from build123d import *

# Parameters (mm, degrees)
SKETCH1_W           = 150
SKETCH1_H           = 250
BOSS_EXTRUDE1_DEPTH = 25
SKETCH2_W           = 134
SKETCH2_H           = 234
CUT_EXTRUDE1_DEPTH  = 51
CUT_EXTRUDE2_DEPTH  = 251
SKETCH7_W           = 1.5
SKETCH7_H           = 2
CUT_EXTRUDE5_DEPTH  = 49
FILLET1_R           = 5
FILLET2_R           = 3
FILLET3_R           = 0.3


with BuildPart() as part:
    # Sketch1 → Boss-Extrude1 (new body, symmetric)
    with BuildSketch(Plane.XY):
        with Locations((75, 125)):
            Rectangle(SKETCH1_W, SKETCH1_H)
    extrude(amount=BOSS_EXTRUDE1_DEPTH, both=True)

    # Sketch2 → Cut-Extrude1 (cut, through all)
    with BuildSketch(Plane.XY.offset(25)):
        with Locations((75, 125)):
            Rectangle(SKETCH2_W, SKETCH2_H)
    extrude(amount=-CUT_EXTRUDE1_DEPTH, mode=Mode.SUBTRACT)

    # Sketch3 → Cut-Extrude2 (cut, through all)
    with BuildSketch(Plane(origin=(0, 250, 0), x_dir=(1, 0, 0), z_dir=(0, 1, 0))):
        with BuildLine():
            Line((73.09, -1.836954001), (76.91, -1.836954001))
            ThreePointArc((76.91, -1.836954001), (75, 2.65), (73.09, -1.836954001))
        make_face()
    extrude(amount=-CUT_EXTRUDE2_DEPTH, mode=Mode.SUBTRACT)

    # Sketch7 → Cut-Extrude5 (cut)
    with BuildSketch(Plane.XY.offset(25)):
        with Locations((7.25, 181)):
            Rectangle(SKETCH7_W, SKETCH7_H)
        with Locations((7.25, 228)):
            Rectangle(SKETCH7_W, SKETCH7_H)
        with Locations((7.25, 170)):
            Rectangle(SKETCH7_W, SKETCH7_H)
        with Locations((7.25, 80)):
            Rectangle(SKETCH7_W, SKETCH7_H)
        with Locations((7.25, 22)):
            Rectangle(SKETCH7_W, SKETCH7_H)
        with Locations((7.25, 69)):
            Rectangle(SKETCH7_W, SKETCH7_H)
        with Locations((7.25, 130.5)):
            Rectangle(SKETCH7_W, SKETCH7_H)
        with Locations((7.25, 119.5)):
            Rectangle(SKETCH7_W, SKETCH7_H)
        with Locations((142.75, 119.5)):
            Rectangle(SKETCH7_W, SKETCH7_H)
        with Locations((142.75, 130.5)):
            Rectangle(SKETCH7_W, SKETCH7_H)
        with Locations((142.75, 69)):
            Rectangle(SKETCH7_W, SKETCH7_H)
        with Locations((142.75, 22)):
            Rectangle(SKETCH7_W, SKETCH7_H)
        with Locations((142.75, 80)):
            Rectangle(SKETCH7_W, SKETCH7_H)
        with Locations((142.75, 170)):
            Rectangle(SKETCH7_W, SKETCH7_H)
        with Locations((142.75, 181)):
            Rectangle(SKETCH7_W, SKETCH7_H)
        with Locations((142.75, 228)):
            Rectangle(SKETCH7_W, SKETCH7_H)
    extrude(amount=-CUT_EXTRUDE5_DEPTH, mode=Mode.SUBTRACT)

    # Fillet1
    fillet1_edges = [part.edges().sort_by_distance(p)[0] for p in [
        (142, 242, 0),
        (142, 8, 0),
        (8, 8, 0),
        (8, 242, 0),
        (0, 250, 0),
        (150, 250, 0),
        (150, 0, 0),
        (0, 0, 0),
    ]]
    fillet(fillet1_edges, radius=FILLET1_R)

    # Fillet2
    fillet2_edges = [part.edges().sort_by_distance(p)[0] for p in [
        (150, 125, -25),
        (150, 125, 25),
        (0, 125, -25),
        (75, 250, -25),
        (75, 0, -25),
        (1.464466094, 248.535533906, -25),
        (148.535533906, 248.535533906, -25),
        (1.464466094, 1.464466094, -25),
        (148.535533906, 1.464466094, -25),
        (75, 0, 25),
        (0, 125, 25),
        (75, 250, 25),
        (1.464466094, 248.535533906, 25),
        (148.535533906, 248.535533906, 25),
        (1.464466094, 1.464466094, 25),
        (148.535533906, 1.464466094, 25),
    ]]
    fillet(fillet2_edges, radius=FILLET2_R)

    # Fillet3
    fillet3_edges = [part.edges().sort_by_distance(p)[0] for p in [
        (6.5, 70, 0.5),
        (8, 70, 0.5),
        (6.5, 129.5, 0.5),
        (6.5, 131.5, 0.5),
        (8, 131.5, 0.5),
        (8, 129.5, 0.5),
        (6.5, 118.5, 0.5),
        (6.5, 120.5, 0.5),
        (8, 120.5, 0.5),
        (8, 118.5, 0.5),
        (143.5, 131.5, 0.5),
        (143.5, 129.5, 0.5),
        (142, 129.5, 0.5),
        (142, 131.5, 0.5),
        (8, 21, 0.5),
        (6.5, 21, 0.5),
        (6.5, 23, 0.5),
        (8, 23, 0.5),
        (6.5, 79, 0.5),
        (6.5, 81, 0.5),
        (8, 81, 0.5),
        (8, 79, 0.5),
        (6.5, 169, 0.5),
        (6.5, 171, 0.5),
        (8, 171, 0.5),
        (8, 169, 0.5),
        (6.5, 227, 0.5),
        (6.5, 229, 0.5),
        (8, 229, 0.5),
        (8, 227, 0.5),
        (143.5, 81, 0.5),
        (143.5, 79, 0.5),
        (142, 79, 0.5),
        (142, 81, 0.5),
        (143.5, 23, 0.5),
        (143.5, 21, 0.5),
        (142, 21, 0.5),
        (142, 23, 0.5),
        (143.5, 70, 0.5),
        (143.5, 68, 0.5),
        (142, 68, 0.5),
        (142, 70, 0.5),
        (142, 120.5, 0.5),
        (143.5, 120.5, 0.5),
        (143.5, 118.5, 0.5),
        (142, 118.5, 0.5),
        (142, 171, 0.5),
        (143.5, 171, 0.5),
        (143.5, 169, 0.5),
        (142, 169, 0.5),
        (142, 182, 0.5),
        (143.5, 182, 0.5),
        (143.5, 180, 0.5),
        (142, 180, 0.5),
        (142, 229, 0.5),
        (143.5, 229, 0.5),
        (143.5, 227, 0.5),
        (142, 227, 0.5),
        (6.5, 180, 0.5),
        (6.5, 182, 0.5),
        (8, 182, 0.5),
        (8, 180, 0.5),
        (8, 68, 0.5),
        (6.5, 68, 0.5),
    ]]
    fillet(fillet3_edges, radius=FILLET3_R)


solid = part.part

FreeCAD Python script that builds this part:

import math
import FreeCAD as App
import Part
import Sketcher
Q = App.Units.Quantity


def edges_at(feature, points):
    """Names of the edges that pass closest to the given points."""
    edges = feature.Shape.Edges
    near = lambda p: min(range(len(edges)), key=lambda i: edges[i].distToShape(Part.Vertex(*p))[0])
    return sorted({f"Edge{near(p) + 1}" for p in points})

doc = App.newDocument("Part")
params = doc.addObject("Spreadsheet::Sheet", "Params")
for row, (alias, value) in enumerate([
    ("sketch1_width", "150 mm"),
    ("sketch1_height", "250 mm"),
    ("pad1_length", "50 mm"),
    ("sketch2_width", "134 mm"),
    ("sketch2_height", "234 mm"),
    ("sketch3_radius", "2.65 mm"),
    ("sketch3_width", "3.82 mm"),
    ("sketch4_height", "2 mm"),
    ("sketch4_width", "1.5 mm"),
    ("pocket3_length", "49 mm"),
    ("fillet_radius", "5 mm"),
    ("fillet2_radius", "3 mm"),
    ("fillet3_radius", "0.3 mm"),
], start=1):
    params.set(f"A{row}", alias)
    params.set(f"B{row}", "=" + value)
    params.setAlias(f"B{row}", alias)

body = doc.addObject("PartDesign::Body", "Body")

sketch1 = doc.addObject("Sketcher::SketchObject", "Sketch")
body.addObject(sketch1)
sketch1.AttachmentSupport = (doc.XY_Plane, [""])
sketch1.MapMode = "FlatFace"
sketch1.addGeometry(Part.LineSegment(App.Vector(0, 250, 0), App.Vector(0, 0, 0)), False)
sketch1.addGeometry(Part.LineSegment(App.Vector(0, 0, 0), App.Vector(150, 0, 0)), False)
sketch1.addGeometry(Part.LineSegment(App.Vector(150, 0, 0), App.Vector(150, 250, 0)), False)
sketch1.addGeometry(Part.LineSegment(App.Vector(150, 250, 0), App.Vector(0, 250, 0)), False)
sketch1.addConstraint(Sketcher.Constraint("Coincident", 0, 2, 1, 1))
sketch1.addConstraint(Sketcher.Constraint("Coincident", 1, 2, 2, 1))
sketch1.addConstraint(Sketcher.Constraint("Coincident", 2, 2, 3, 1))
sketch1.addConstraint(Sketcher.Constraint("Coincident", 3, 2, 0, 1))
sketch1.addConstraint(Sketcher.Constraint("Vertical", 0))
sketch1.addConstraint(Sketcher.Constraint("Horizontal", 1))
sketch1.addConstraint(Sketcher.Constraint("Vertical", 2))
sketch1.addConstraint(Sketcher.Constraint("Horizontal", 3))
sketch1.addConstraint(Sketcher.Constraint("Coincident", 0, 2, -1, 1))
sketch1.addConstraint(Sketcher.Constraint("DistanceX", 1, 1, 1, 2, Q("150 mm")))
sketch1.addConstraint(Sketcher.Constraint("DistanceY", 0, 2, 0, 1, Q("250 mm")))
sketch1.setExpression("Constraints[9]", "Params.sketch1_width")
sketch1.setExpression("Constraints[10]", "Params.sketch1_height")
pad1 = doc.addObject("PartDesign::Pad", "Pad")
body.addObject(pad1)
pad1.Profile = sketch1
pad1.setExpression("Length", "Params.pad1_length")
pad1.Midplane = True

sketch2 = doc.addObject("Sketcher::SketchObject", "Sketch001")
body.addObject(sketch2)
sketch2.AttachmentSupport = (doc.XY_Plane, [""])
sketch2.MapMode = "FlatFace"
sketch2.AttachmentOffset = App.Placement(App.Vector(0, 0, 25), App.Rotation())
sketch2.addGeometry(Part.LineSegment(App.Vector(8, 242, 0), App.Vector(8, 8, 0)), False)
sketch2.addGeometry(Part.LineSegment(App.Vector(8, 8, 0), App.Vector(142, 8, 0)), False)
sketch2.addGeometry(Part.LineSegment(App.Vector(142, 8, 0), App.Vector(142, 242, 0)), False)
sketch2.addGeometry(Part.LineSegment(App.Vector(142, 242, 0), App.Vector(8, 242, 0)), False)
sketch2.addConstraint(Sketcher.Constraint("Coincident", 0, 2, 1, 1))
sketch2.addConstraint(Sketcher.Constraint("Coincident", 1, 2, 2, 1))
sketch2.addConstraint(Sketcher.Constraint("Coincident", 2, 2, 3, 1))
sketch2.addConstraint(Sketcher.Constraint("Coincident", 3, 2, 0, 1))
sketch2.addConstraint(Sketcher.Constraint("Vertical", 0))
sketch2.addConstraint(Sketcher.Constraint("Horizontal", 1))
sketch2.addConstraint(Sketcher.Constraint("Vertical", 2))
sketch2.addConstraint(Sketcher.Constraint("Horizontal", 3))
sketch2.addConstraint(Sketcher.Constraint("DistanceX", 1, 1, 1, 2, Q("134 mm")))
sketch2.addConstraint(Sketcher.Constraint("DistanceY", 0, 2, 0, 1, Q("234 mm")))
sketch2.addConstraint(Sketcher.Constraint("DistanceX", -1, 1, 0, 2, Q("8 mm")))
sketch2.addConstraint(Sketcher.Constraint("DistanceY", -1, 1, 0, 2, Q("8 mm")))
sketch2.setExpression("Constraints[8]", "Params.sketch2_width")
sketch2.setExpression("Constraints[9]", "Params.sketch2_height")
pocket1 = doc.addObject("PartDesign::Pocket", "Pocket")
body.addObject(pocket1)
pocket1.Profile = sketch2
pocket1.Type = "ThroughAll"

sketch3 = doc.addObject("Sketcher::SketchObject", "Sketch002")
body.addObject(sketch3)
sketch3.AttachmentSupport = (doc.XZ_Plane, [""])
sketch3.MapMode = "FlatFace"
sketch3.AttachmentOffset = App.Placement(App.Vector(0, 0, -250), App.Rotation())
sketch3.addGeometry(Part.LineSegment(App.Vector(73.09, 1.836954, 0), App.Vector(76.91, 1.836954, 0)), False)
sketch3.addGeometry(Part.ArcOfCircle(Part.Circle(App.Vector(75, 0, 0), App.Vector(0, 0, 1), 2.65), math.radians(136.116826), math.radians(403.883174)), False)
sketch3.addConstraint(Sketcher.Constraint("Coincident", 0, 1, 1, 1))
sketch3.addConstraint(Sketcher.Constraint("Coincident", 1, 2, 0, 2))
sketch3.addConstraint(Sketcher.Constraint("Horizontal", 0))
sketch3.addConstraint(Sketcher.Constraint("PointOnObject", 1, 3, -1))
sketch3.addConstraint(Sketcher.Constraint("Radius", 1, Q("2.65 mm")))
sketch3.addConstraint(Sketcher.Constraint("DistanceX", -1, 1, 1, 3, Q("75 mm")))
sketch3.addConstraint(Sketcher.Constraint("DistanceX", 0, 1, 0, 2, Q("3.82 mm")))
sketch3.setExpression("Constraints[4]", "Params.sketch3_radius")
sketch3.setExpression("Constraints[6]", "Params.sketch3_width")
pocket2 = doc.addObject("PartDesign::Pocket", "Pocket001")
body.addObject(pocket2)
pocket2.Profile = sketch3
pocket2.Type = "ThroughAll"
pocket2.Reversed = True

sketch4 = doc.addObject("Sketcher::SketchObject", "Sketch003")
body.addObject(sketch4)
sketch4.AttachmentSupport = (doc.XY_Plane, [""])
sketch4.MapMode = "FlatFace"
sketch4.AttachmentOffset = App.Placement(App.Vector(0, 0, 25), App.Rotation())
sketch4.addGeometry(Part.LineSegment(App.Vector(6.5, 182, 0), App.Vector(6.5, 180, 0)), False)
sketch4.addGeometry(Part.LineSegment(App.Vector(6.5, 180, 0), App.Vector(8, 180, 0)), False)
sketch4.addGeometry(Part.LineSegment(App.Vector(8, 180, 0), App.Vector(8, 182, 0)), False)
sketch4.addGeometry(Part.LineSegment(App.Vector(8, 182, 0), App.Vector(6.5, 182, 0)), False)
sketch4.addGeometry(Part.LineSegment(App.Vector(6.5, 229, 0), App.Vector(6.5, 227, 0)), False)
sketch4.addGeometry(Part.LineSegment(App.Vector(6.5, 227, 0), App.Vector(8, 227, 0)), False)
sketch4.addGeometry(Part.LineSegment(App.Vector(8, 227, 0), App.Vector(8, 229, 0)), False)
sketch4.addGeometry(Part.LineSegment(App.Vector(8, 229, 0), App.Vector(6.5, 229, 0)), False)
sketch4.addGeometry(Part.LineSegment(App.Vector(6.5, 171, 0), App.Vector(6.5, 169, 0)), False)
sketch4.addGeometry(Part.LineSegment(App.Vector(6.5, 169, 0), App.Vector(8, 169, 0)), False)
sketch4.addGeometry(Part.LineSegment(App.Vector(8, 169, 0), App.Vector(8, 171, 0)), False)
sketch4.addGeometry(Part.LineSegment(App.Vector(8, 171, 0), App.Vector(6.5, 171, 0)), False)
sketch4.addGeometry(Part.LineSegment(App.Vector(6.5, 81, 0), App.Vector(6.5, 79, 0)), False)
sketch4.addGeometry(Part.LineSegment(App.Vector(6.5, 79, 0), App.Vector(8, 79, 0)), False)
sketch4.addGeometry(Part.LineSegment(App.Vector(8, 79, 0), App.Vector(8, 81, 0)), False)
sketch4.addGeometry(Part.LineSegment(App.Vector(8, 81, 0), App.Vector(6.5, 81, 0)), False)
sketch4.addGeometry(Part.LineSegment(App.Vector(6.5, 23, 0), App.Vector(6.5, 21, 0)), False)
sketch4.addGeometry(Part.LineSegment(App.Vector(6.5, 21, 0), App.Vector(8, 21, 0)), False)
sketch4.addGeometry(Part.LineSegment(App.Vector(8, 21, 0), App.Vector(8, 23, 0)), False)
sketch4.addGeometry(Part.LineSegment(App.Vector(8, 23, 0), App.Vector(6.5, 23, 0)), False)
sketch4.addGeometry(Part.LineSegment(App.Vector(6.5, 70, 0), App.Vector(6.5, 68, 0)), False)
sketch4.addGeometry(Part.LineSegment(App.Vector(6.5, 68, 0), App.Vector(8, 68, 0)), False)
sketch4.addGeometry(Part.LineSegment(App.Vector(8, 68, 0), App.Vector(8, 70, 0)), False)
sketch4.addGeometry(Part.LineSegment(App.Vector(8, 70, 0), App.Vector(6.5, 70, 0)), False)
sketch4.addGeometry(Part.LineSegment(App.Vector(6.5, 131.5, 0), App.Vector(6.5, 129.5, 0)), False)
sketch4.addGeometry(Part.LineSegment(App.Vector(6.5, 129.5, 0), App.Vector(8, 129.5, 0)), False)
sketch4.addGeometry(Part.LineSegment(App.Vector(8, 129.5, 0), App.Vector(8, 131.5, 0)), False)
sketch4.addGeometry(Part.LineSegment(App.Vector(8, 131.5, 0), App.Vector(6.5, 131.5, 0)), False)
sketch4.addGeometry(Part.LineSegment(App.Vector(6.5, 120.5, 0), App.Vector(6.5, 118.5, 0)), False)
sketch4.addGeometry(Part.LineSegment(App.Vector(6.5, 118.5, 0), App.Vector(8, 118.5, 0)), False)
sketch4.addGeometry(Part.LineSegment(App.Vector(8, 118.5, 0), App.Vector(8, 120.5, 0)), False)
sketch4.addGeometry(Part.LineSegment(App.Vector(8, 120.5, 0), App.Vector(6.5, 120.5, 0)), False)
sketch4.addGeometry(Part.LineSegment(App.Vector(142, 120.5, 0), App.Vector(142, 118.5, 0)), False)
sketch4.addGeometry(Part.LineSegment(App.Vector(142, 118.5, 0), App.Vector(143.5, 118.5, 0)), False)
sketch4.addGeometry(Part.LineSegment(App.Vector(143.5, 118.5, 0), App.Vector(143.5, 120.5, 0)), False)
sketch4.addGeometry(Part.LineSegment(App.Vector(143.5, 120.5, 0), App.Vector(142, 120.5, 0)), False)
sketch4.addGeometry(Part.LineSegment(App.Vector(142, 131.5, 0), App.Vector(142, 129.5, 0)), False)
sketch4.addGeometry(Part.LineSegment(App.Vector(142, 129.5, 0), App.Vector(143.5, 129.5, 0)), False)
sketch4.addGeometry(Part.LineSegment(App.Vector(143.5, 129.5, 0), App.Vector(143.5, 131.5, 0)), False)
sketch4.addGeometry(Part.LineSegment(App.Vector(143.5, 131.5, 0), App.Vector(142, 131.5, 0)), False)
sketch4.addGeometry(Part.LineSegment(App.Vector(142, 70, 0), App.Vector(142, 68, 0)), False)
sketch4.addGeometry(Part.LineSegment(App.Vector(142, 68, 0), App.Vector(143.5, 68, 0)), False)
sketch4.addGeometry(Part.LineSegment(App.Vector(143.5, 68, 0), App.Vector(143.5, 70, 0)), False)
sketch4.addGeometry(Part.LineSegment(App.Vector(143.5, 70, 0), App.Vector(142, 70, 0)), False)
sketch4.addGeometry(Part.LineSegment(App.Vector(142, 23, 0), App.Vector(142, 21, 0)), False)
sketch4.addGeometry(Part.LineSegment(App.Vector(142, 21, 0), App.Vector(143.5, 21, 0)), False)
sketch4.addGeometry(Part.LineSegment(App.Vector(143.5, 21, 0), App.Vector(143.5, 23, 0)), False)
sketch4.addGeometry(Part.LineSegment(App.Vector(143.5, 23, 0), App.Vector(142, 23, 0)), False)
sketch4.addGeometry(Part.LineSegment(App.Vector(142, 81, 0), App.Vector(142, 79, 0)), False)
sketch4.addGeometry(Part.LineSegment(App.Vector(142, 79, 0), App.Vector(143.5, 79, 0)), False)
sketch4.addGeometry(Part.LineSegment(App.Vector(143.5, 79, 0), App.Vector(143.5, 81, 0)), False)
sketch4.addGeometry(Part.LineSegment(App.Vector(143.5, 81, 0), App.Vector(142, 81, 0)), False)
sketch4.addGeometry(Part.LineSegment(App.Vector(142, 171, 0), App.Vector(142, 169, 0)), False)
sketch4.addGeometry(Part.LineSegment(App.Vector(142, 169, 0), App.Vector(143.5, 169, 0)), False)
sketch4.addGeometry(Part.LineSegment(App.Vector(143.5, 169, 0), App.Vector(143.5, 171, 0)), False)
sketch4.addGeometry(Part.LineSegment(App.Vector(143.5, 171, 0), App.Vector(142, 171, 0)), False)
sketch4.addGeometry(Part.LineSegment(App.Vector(142, 182, 0), App.Vector(142, 180, 0)), False)
sketch4.addGeometry(Part.LineSegment(App.Vector(142, 180, 0), App.Vector(143.5, 180, 0)), False)
sketch4.addGeometry(Part.LineSegment(App.Vector(143.5, 180, 0), App.Vector(143.5, 182, 0)), False)
sketch4.addGeometry(Part.LineSegment(App.Vector(143.5, 182, 0), App.Vector(142, 182, 0)), False)
sketch4.addGeometry(Part.LineSegment(App.Vector(142, 229, 0), App.Vector(142, 227, 0)), False)
sketch4.addGeometry(Part.LineSegment(App.Vector(142, 227, 0), App.Vector(143.5, 227, 0)), False)
sketch4.addGeometry(Part.LineSegment(App.Vector(143.5, 227, 0), App.Vector(143.5, 229, 0)), False)
sketch4.addGeometry(Part.LineSegment(App.Vector(143.5, 229, 0), App.Vector(142, 229, 0)), False)
sketch4.addConstraint(Sketcher.Constraint("Coincident", 0, 2, 1, 1))
sketch4.addConstraint(Sketcher.Constraint("Coincident", 1, 2, 2, 1))
sketch4.addConstraint(Sketcher.Constraint("Coincident", 2, 2, 3, 1))
sketch4.addConstraint(Sketcher.Constraint("Coincident", 3, 2, 0, 1))
sketch4.addConstraint(Sketcher.Constraint("Coincident", 4, 2, 5, 1))
sketch4.addConstraint(Sketcher.Constraint("Coincident", 5, 2, 6, 1))
sketch4.addConstraint(Sketcher.Constraint("Coincident", 6, 2, 7, 1))
sketch4.addConstraint(Sketcher.Constraint("Coincident", 7, 2, 4, 1))
sketch4.addConstraint(Sketcher.Constraint("Coincident", 8, 2, 9, 1))
sketch4.addConstraint(Sketcher.Constraint("Coincident", 9, 2, 10, 1))
sketch4.addConstraint(Sketcher.Constraint("Coincident", 10, 2, 11, 1))
sketch4.addConstraint(Sketcher.Constraint("Coincident", 11, 2, 8, 1))
sketch4.addConstraint(Sketcher.Constraint("Coincident", 12, 2, 13, 1))
sketch4.addConstraint(Sketcher.Constraint("Coincident", 13, 2, 14, 1))
sketch4.addConstraint(Sketcher.Constraint("Coincident", 14, 2, 15, 1))
sketch4.addConstraint(Sketcher.Constraint("Coincident", 15, 2, 12, 1))
sketch4.addConstraint(Sketcher.Constraint("Coincident", 16, 2, 17, 1))
sketch4.addConstraint(Sketcher.Constraint("Coincident", 17, 2, 18, 1))
sketch4.addConstraint(Sketcher.Constraint("Coincident", 18, 2, 19, 1))
sketch4.addConstraint(Sketcher.Constraint("Coincident", 19, 2, 16, 1))
sketch4.addConstraint(Sketcher.Constraint("Coincident", 20, 2, 21, 1))
sketch4.addConstraint(Sketcher.Constraint("Coincident", 21, 2, 22, 1))
sketch4.addConstraint(Sketcher.Constraint("Coincident", 22, 2, 23, 1))
sketch4.addConstraint(Sketcher.Constraint("Coincident", 23, 2, 20, 1))
sketch4.addConstraint(Sketcher.Constraint("Coincident", 24, 2, 25, 1))
sketch4.addConstraint(Sketcher.Constraint("Coincident", 25, 2, 26, 1))
sketch4.addConstraint(Sketcher.Constraint("Coincident", 26, 2, 27, 1))
sketch4.addConstraint(Sketcher.Constraint("Coincident", 27, 2, 24, 1))
sketch4.addConstraint(Sketcher.Constraint("Coincident", 28, 2, 29, 1))
sketch4.addConstraint(Sketcher.Constraint("Coincident", 29, 2, 30, 1))
sketch4.addConstraint(Sketcher.Constraint("Coincident", 30, 2, 31, 1))
sketch4.addConstraint(Sketcher.Constraint("Coincident", 31, 2, 28, 1))
sketch4.addConstraint(Sketcher.Constraint("Coincident", 32, 2, 33, 1))
sketch4.addConstraint(Sketcher.Constraint("Coincident", 33, 2, 34, 1))
sketch4.addConstraint(Sketcher.Constraint("Coincident", 34, 2, 35, 1))
sketch4.addConstraint(Sketcher.Constraint("Coincident", 35, 2, 32, 1))
sketch4.addConstraint(Sketcher.Constraint("Coincident", 36, 2, 37, 1))
sketch4.addConstraint(Sketcher.Constraint("Coincident", 37, 2, 38, 1))
sketch4.addConstraint(Sketcher.Constraint("Coincident", 38, 2, 39, 1))
sketch4.addConstraint(Sketcher.Constraint("Coincident", 39, 2, 36, 1))
sketch4.addConstraint(Sketcher.Constraint("Coincident", 40, 2, 41, 1))
sketch4.addConstraint(Sketcher.Constraint("Coincident", 41, 2, 42, 1))
sketch4.addConstraint(Sketcher.Constraint("Coincident", 42, 2, 43, 1))
sketch4.addConstraint(Sketcher.Constraint("Coincident", 43, 2, 40, 1))
sketch4.addConstraint(Sketcher.Constraint("Coincident", 44, 2, 45, 1))
sketch4.addConstraint(Sketcher.Constraint("Coincident", 45, 2, 46, 1))
sketch4.addConstraint(Sketcher.Constraint("Coincident", 46, 2, 47, 1))
sketch4.addConstraint(Sketcher.Constraint("Coincident", 47, 2, 44, 1))
sketch4.addConstraint(Sketcher.Constraint("Coincident", 48, 2, 49, 1))
sketch4.addConstraint(Sketcher.Constraint("Coincident", 49, 2, 50, 1))
sketch4.addConstraint(Sketcher.Constraint("Coincident", 50, 2, 51, 1))
sketch4.addConstraint(Sketcher.Constraint("Coincident", 51, 2, 48, 1))
sketch4.addConstraint(Sketcher.Constraint("Coincident", 52, 2, 53, 1))
sketch4.addConstraint(Sketcher.Constraint("Coincident", 53, 2, 54, 1))
sketch4.addConstraint(Sketcher.Constraint("Coincident", 54, 2, 55, 1))
sketch4.addConstraint(Sketcher.Constraint("Coincident", 55, 2, 52, 1))
sketch4.addConstraint(Sketcher.Constraint("Coincident", 56, 2, 57, 1))
sketch4.addConstraint(Sketcher.Constraint("Coincident", 57, 2, 58, 1))
sketch4.addConstraint(Sketcher.Constraint("Coincident", 58, 2, 59, 1))
sketch4.addConstraint(Sketcher.Constraint("Coincident", 59, 2, 56, 1))
sketch4.addConstraint(Sketcher.Constraint("Coincident", 60, 2, 61, 1))
sketch4.addConstraint(Sketcher.Constraint("Coincident", 61, 2, 62, 1))
sketch4.addConstraint(Sketcher.Constraint("Coincident", 62, 2, 63, 1))
sketch4.addConstraint(Sketcher.Constraint("Coincident", 63, 2, 60, 1))
sketch4.addConstraint(Sketcher.Constraint("Vertical", 0))
sketch4.addConstraint(Sketcher.Constraint("Horizontal", 1))
sketch4.addConstraint(Sketcher.Constraint("Vertical", 2))
sketch4.addConstraint(Sketcher.Constraint("Horizontal", 3))
sketch4.addConstraint(Sketcher.Constraint("Vertical", 4))
sketch4.addConstraint(Sketcher.Constraint("Horizontal", 5))
sketch4.addConstraint(Sketcher.Constraint("Vertical", 6))
sketch4.addConstraint(Sketcher.Constraint("Horizontal", 7))
sketch4.addConstraint(Sketcher.Constraint("Vertical", 8))
sketch4.addConstraint(Sketcher.Constraint("Horizontal", 9))
sketch4.addConstraint(Sketcher.Constraint("Vertical", 10))
sketch4.addConstraint(Sketcher.Constraint("Horizontal", 11))
sketch4.addConstraint(Sketcher.Constraint("Vertical", 12))
sketch4.addConstraint(Sketcher.Constraint("Horizontal", 13))
sketch4.addConstraint(Sketcher.Constraint("Vertical", 14))
sketch4.addConstraint(Sketcher.Constraint("Horizontal", 15))
sketch4.addConstraint(Sketcher.Constraint("Vertical", 16))
sketch4.addConstraint(Sketcher.Constraint("Horizontal", 17))
sketch4.addConstraint(Sketcher.Constraint("Vertical", 18))
sketch4.addConstraint(Sketcher.Constraint("Horizontal", 19))
sketch4.addConstraint(Sketcher.Constraint("Vertical", 20))
sketch4.addConstraint(Sketcher.Constraint("Horizontal", 21))
sketch4.addConstraint(Sketcher.Constraint("Vertical", 22))
sketch4.addConstraint(Sketcher.Constraint("Horizontal", 23))
sketch4.addConstraint(Sketcher.Constraint("Vertical", 24))
sketch4.addConstraint(Sketcher.Constraint("Horizontal", 25))
sketch4.addConstraint(Sketcher.Constraint("Vertical", 26))
sketch4.addConstraint(Sketcher.Constraint("Horizontal", 27))
sketch4.addConstraint(Sketcher.Constraint("Vertical", 28))
sketch4.addConstraint(Sketcher.Constraint("Horizontal", 29))
sketch4.addConstraint(Sketcher.Constraint("Vertical", 30))
sketch4.addConstraint(Sketcher.Constraint("Horizontal", 31))
sketch4.addConstraint(Sketcher.Constraint("Vertical", 32))
sketch4.addConstraint(Sketcher.Constraint("Horizontal", 33))
sketch4.addConstraint(Sketcher.Constraint("Vertical", 34))
sketch4.addConstraint(Sketcher.Constraint("Horizontal", 35))
sketch4.addConstraint(Sketcher.Constraint("Vertical", 36))
sketch4.addConstraint(Sketcher.Constraint("Horizontal", 37))
sketch4.addConstraint(Sketcher.Constraint("Vertical", 38))
sketch4.addConstraint(Sketcher.Constraint("Horizontal", 39))
sketch4.addConstraint(Sketcher.Constraint("Vertical", 40))
sketch4.addConstraint(Sketcher.Constraint("Horizontal", 41))
sketch4.addConstraint(Sketcher.Constraint("Vertical", 42))
sketch4.addConstraint(Sketcher.Constraint("Horizontal", 43))
sketch4.addConstraint(Sketcher.Constraint("Vertical", 44))
sketch4.addConstraint(Sketcher.Constraint("Horizontal", 45))
sketch4.addConstraint(Sketcher.Constraint("Vertical", 46))
sketch4.addConstraint(Sketcher.Constraint("Horizontal", 47))
sketch4.addConstraint(Sketcher.Constraint("Vertical", 48))
sketch4.addConstraint(Sketcher.Constraint("Horizontal", 49))
sketch4.addConstraint(Sketcher.Constraint("Vertical", 50))
sketch4.addConstraint(Sketcher.Constraint("Horizontal", 51))
sketch4.addConstraint(Sketcher.Constraint("Vertical", 52))
sketch4.addConstraint(Sketcher.Constraint("Horizontal", 53))
sketch4.addConstraint(Sketcher.Constraint("Vertical", 54))
sketch4.addConstraint(Sketcher.Constraint("Horizontal", 55))
sketch4.addConstraint(Sketcher.Constraint("Vertical", 56))
sketch4.addConstraint(Sketcher.Constraint("Horizontal", 57))
sketch4.addConstraint(Sketcher.Constraint("Vertical", 58))
sketch4.addConstraint(Sketcher.Constraint("Horizontal", 59))
sketch4.addConstraint(Sketcher.Constraint("Vertical", 60))
sketch4.addConstraint(Sketcher.Constraint("Horizontal", 61))
sketch4.addConstraint(Sketcher.Constraint("Vertical", 62))
sketch4.addConstraint(Sketcher.Constraint("Horizontal", 63))
sketch4.addConstraint(Sketcher.Constraint("Horizontal", 29, 2, 32, 2))
sketch4.addConstraint(Sketcher.Constraint("Horizontal", 31, 2, 34, 2))
sketch4.addConstraint(Sketcher.Constraint("Horizontal", 25, 2, 36, 2))
sketch4.addConstraint(Sketcher.Constraint("Horizontal", 27, 2, 38, 2))
sketch4.addConstraint(Sketcher.Constraint("Horizontal", 21, 2, 40, 2))
sketch4.addConstraint(Sketcher.Constraint("Horizontal", 23, 2, 42, 2))
sketch4.addConstraint(Sketcher.Constraint("Horizontal", 17, 2, 44, 2))
sketch4.addConstraint(Sketcher.Constraint("Horizontal", 19, 2, 46, 2))
sketch4.addConstraint(Sketcher.Constraint("Horizontal", 13, 2, 48, 2))
sketch4.addConstraint(Sketcher.Constraint("Horizontal", 15, 2, 50, 2))
sketch4.addConstraint(Sketcher.Constraint("Horizontal", 9, 2, 52, 2))
sketch4.addConstraint(Sketcher.Constraint("Horizontal", 11, 2, 54, 2))
sketch4.addConstraint(Sketcher.Constraint("Horizontal", 1, 2, 56, 2))
sketch4.addConstraint(Sketcher.Constraint("Horizontal", 3, 2, 58, 2))
sketch4.addConstraint(Sketcher.Constraint("Horizontal", 5, 2, 60, 2))
sketch4.addConstraint(Sketcher.Constraint("Horizontal", 7, 2, 62, 2))
sketch4.addConstraint(Sketcher.Constraint("Vertical", 3, 2, 4, 2))
sketch4.addConstraint(Sketcher.Constraint("Vertical", 2, 2, 5, 2))
sketch4.addConstraint(Sketcher.Constraint("Vertical", 7, 2, 8, 2))
sketch4.addConstraint(Sketcher.Constraint("Vertical", 6, 2, 9, 2))
sketch4.addConstraint(Sketcher.Constraint("Vertical", 11, 2, 12, 2))
sketch4.addConstraint(Sketcher.Constraint("Vertical", 10, 2, 13, 2))
sketch4.addConstraint(Sketcher.Constraint("Vertical", 15, 2, 16, 2))
sketch4.addConstraint(Sketcher.Constraint("Vertical", 14, 2, 17, 2))
sketch4.addConstraint(Sketcher.Constraint("Vertical", 19, 2, 20, 2))
sketch4.addConstraint(Sketcher.Constraint("Vertical", 18, 2, 21, 2))
sketch4.addConstraint(Sketcher.Constraint("Vertical", 23, 2, 24, 2))
sketch4.addConstraint(Sketcher.Constraint("Vertical", 22, 2, 25, 2))
sketch4.addConstraint(Sketcher.Constraint("Vertical", 27, 2, 28, 2))
sketch4.addConstraint(Sketcher.Constraint("Vertical", 26, 2, 29, 2))
sketch4.addConstraint(Sketcher.Constraint("Vertical", 35, 2, 36, 2))
sketch4.addConstraint(Sketcher.Constraint("Vertical", 34, 2, 37, 2))
sketch4.addConstraint(Sketcher.Constraint("Vertical", 39, 2, 40, 2))
sketch4.addConstraint(Sketcher.Constraint("Vertical", 38, 2, 41, 2))
sketch4.addConstraint(Sketcher.Constraint("Vertical", 43, 2, 44, 2))
sketch4.addConstraint(Sketcher.Constraint("Vertical", 42, 2, 45, 2))
sketch4.addConstraint(Sketcher.Constraint("Vertical", 47, 2, 48, 2))
sketch4.addConstraint(Sketcher.Constraint("Vertical", 46, 2, 49, 2))
sketch4.addConstraint(Sketcher.Constraint("Vertical", 51, 2, 52, 2))
sketch4.addConstraint(Sketcher.Constraint("Vertical", 50, 2, 53, 2))
sketch4.addConstraint(Sketcher.Constraint("Vertical", 55, 2, 56, 2))
sketch4.addConstraint(Sketcher.Constraint("Vertical", 54, 2, 57, 2))
sketch4.addConstraint(Sketcher.Constraint("Vertical", 59, 2, 60, 2))
sketch4.addConstraint(Sketcher.Constraint("Vertical", 58, 2, 61, 2))
sketch4.addConstraint(Sketcher.Constraint("Equal", 31, 33))
sketch4.addConstraint(Sketcher.Constraint("Equal", 2, 4))
sketch4.addConstraint(Sketcher.Constraint("Equal", 6, 8))
sketch4.addConstraint(Sketcher.Constraint("Equal", 10, 12))
sketch4.addConstraint(Sketcher.Constraint("Equal", 14, 16))
sketch4.addConstraint(Sketcher.Constraint("Equal", 18, 20))
sketch4.addConstraint(Sketcher.Constraint("Equal", 22, 24))
sketch4.addConstraint(Sketcher.Constraint("Equal", 26, 28))
sketch4.addConstraint(Sketcher.Constraint("DistanceY", 0, 2, 0, 1, Q("2 mm")))
sketch4.addConstraint(Sketcher.Constraint("DistanceX", 1, 1, 1, 2, Q("1.5 mm")))
sketch4.addConstraint(Sketcher.Constraint("DistanceY", -1, 1, 0, 2, Q("180 mm")))
sketch4.addConstraint(Sketcher.Constraint("DistanceX", -1, 1, 1, 2, Q("8 mm")))
sketch4.addConstraint(Sketcher.Constraint("DistanceY", -1, 1, 4, 2, Q("227 mm")))
sketch4.addConstraint(Sketcher.Constraint("DistanceY", -1, 1, 8, 2, Q("169 mm")))
sketch4.addConstraint(Sketcher.Constraint("DistanceY", -1, 1, 12, 2, Q("79 mm")))
sketch4.addConstraint(Sketcher.Constraint("DistanceY", -1, 1, 16, 2, Q("21 mm")))
sketch4.addConstraint(Sketcher.Constraint("DistanceY", -1, 1, 20, 2, Q("68 mm")))
sketch4.addConstraint(Sketcher.Constraint("DistanceX", -1, 1, 32, 2, Q("142 mm")))
sketch4.addConstraint(Sketcher.Constraint("DistanceY", -1, 1, 24, 2, Q("129.5 mm")))
sketch4.addConstraint(Sketcher.Constraint("DistanceY", -1, 1, 28, 2, Q("118.5 mm")))
sketch4.setExpression("Constraints[180]", "Params.sketch4_height")
sketch4.setExpression("Constraints[181]", "Params.sketch4_width")
pocket3 = doc.addObject("PartDesign::Pocket", "Pocket002")
body.addObject(pocket3)
pocket3.Profile = sketch4
pocket3.setExpression("Length", "Params.pocket3_length")
doc.recompute()

fillet = doc.addObject("PartDesign::Fillet", "Fillet")
body.addObject(fillet)
fillet.Base = (pocket3, edges_at(pocket3, [
    (142, 242, 0),
    (142, 8, 0),
    (8, 8, 0),
    (8, 242, 0),
    (0, 250, 0),
    (150, 250, 0),
    (150, 0, 0),
    (0, 0, 0),
]))
fillet.setExpression("Radius", "Params.fillet_radius")
doc.recompute()

fillet2 = doc.addObject("PartDesign::Fillet", "Fillet001")
body.addObject(fillet2)
fillet2.Base = (fillet, edges_at(fillet, [
    (150, 125, -25),
    (150, 125, 25),
    (0, 125, -25),
    (75, 250, -25),
    (75, 0, -25),
    (1.464, 248.536, -25),
    (148.536, 248.536, -25),
    (1.464, 1.464, -25),
    (148.536, 1.464, -25),
    (75, 0, 25),
    (0, 125, 25),
    (75, 250, 25),
    (1.464, 248.536, 25),
    (148.536, 248.536, 25),
    (1.464, 1.464, 25),
    (148.536, 1.464, 25),
]))
fillet2.setExpression("Radius", "Params.fillet2_radius")
doc.recompute()

fillet3 = doc.addObject("PartDesign::Fillet", "Fillet002")
body.addObject(fillet3)
fillet3.Base = (fillet2, edges_at(fillet2, [
    (6.5, 70, 0.5),
    (8, 70, 0.5),
    (6.5, 129.5, 0.5),
    (6.5, 131.5, 0.5),
    (8, 131.5, 0.5),
    (8, 129.5, 0.5),
    (6.5, 118.5, 0.5),
    (6.5, 120.5, 0.5),
    (8, 120.5, 0.5),
    (8, 118.5, 0.5),
    (143.5, 131.5, 0.5),
    (143.5, 129.5, 0.5),
    (142, 129.5, 0.5),
    (142, 131.5, 0.5),
    (8, 21, 0.5),
    (6.5, 21, 0.5),
    (6.5, 23, 0.5),
    (8, 23, 0.5),
    (6.5, 79, 0.5),
    (6.5, 81, 0.5),
    (8, 81, 0.5),
    (8, 79, 0.5),
    (6.5, 169, 0.5),
    (6.5, 171, 0.5),
    (8, 171, 0.5),
    (8, 169, 0.5),
    (6.5, 227, 0.5),
    (6.5, 229, 0.5),
    (8, 229, 0.5),
    (8, 227, 0.5),
    (143.5, 81, 0.5),
    (143.5, 79, 0.5),
    (142, 79, 0.5),
    (142, 81, 0.5),
    (143.5, 23, 0.5),
    (143.5, 21, 0.5),
    (142, 21, 0.5),
    (142, 23, 0.5),
    (143.5, 70, 0.5),
    (143.5, 68, 0.5),
    (142, 68, 0.5),
    (142, 70, 0.5),
    (142, 120.5, 0.5),
    (143.5, 120.5, 0.5),
    (143.5, 118.5, 0.5),
    (142, 118.5, 0.5),
    (142, 171, 0.5),
    (143.5, 171, 0.5),
    (143.5, 169, 0.5),
    (142, 169, 0.5),
    (142, 182, 0.5),
    (143.5, 182, 0.5),
    (143.5, 180, 0.5),
    (142, 180, 0.5),
    (142, 229, 0.5),
    (143.5, 229, 0.5),
    (143.5, 227, 0.5),
    (142, 227, 0.5),
    (6.5, 180, 0.5),
    (6.5, 182, 0.5),
    (8, 182, 0.5),
    (8, 180, 0.5),
    (8, 68, 0.5),
    (6.5, 68, 0.5),
]))
fillet3.setExpression("Radius", "Params.fillet3_radius")

doc.recompute()
